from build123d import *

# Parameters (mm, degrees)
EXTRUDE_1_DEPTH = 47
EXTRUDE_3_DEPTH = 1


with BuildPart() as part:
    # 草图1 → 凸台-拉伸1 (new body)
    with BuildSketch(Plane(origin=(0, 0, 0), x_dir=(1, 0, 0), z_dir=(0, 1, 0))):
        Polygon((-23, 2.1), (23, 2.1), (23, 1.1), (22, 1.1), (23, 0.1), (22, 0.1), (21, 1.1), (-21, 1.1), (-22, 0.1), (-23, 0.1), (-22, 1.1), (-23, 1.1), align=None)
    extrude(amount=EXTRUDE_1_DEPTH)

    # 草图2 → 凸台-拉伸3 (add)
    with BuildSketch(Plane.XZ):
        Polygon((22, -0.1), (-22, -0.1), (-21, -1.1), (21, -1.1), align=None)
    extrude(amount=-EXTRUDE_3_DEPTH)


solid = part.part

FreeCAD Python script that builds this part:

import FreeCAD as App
import Part
import Sketcher
from FreeCAD import Vector


def add_polygon(sketch, points):
    """Adds a closed chain of lines whose ends are joined by coincident constraints."""
    first, n = sketch.GeometryCount, len(points)
    for a, b in zip(points, points[1:] + points[:1]):
        sketch.addGeometry(Part.LineSegment(App.Vector(*a, 0), App.Vector(*b, 0)), False)
    for i in range(n):
        sketch.addConstraint(Sketcher.Constraint("Coincident", first + i, 2, first + (i + 1) % n, 1))

doc = App.newDocument("Part")
body = doc.addObject("PartDesign::Body", "Body")

sketch1 = doc.addObject("Sketcher::SketchObject", "Sketch")
body.addObject(sketch1)
sketch1.AttachmentSupport = (doc.XZ_Plane, [""])
sketch1.MapMode = "FlatFace"
add_polygon(sketch1, [(23, -2.1), (-23, -2.1), (-23, -1.1), (-22, -1.1), (-23, -0.1), (-22, -0.1), (-21, -1.1), (21, -1.1), (22, -0.1), (23, -0.1), (22, -1.1), (23, -1.1)])
sketch1.addConstraint([
    Sketcher.Constraint("Horizontal", 0),
    Sketcher.Constraint("Vertical", 1),
    Sketcher.Constraint("Horizontal", 2),
    Sketcher.Constraint("Horizontal", 4),
    Sketcher.Constraint("Horizontal", 6),
    Sketcher.Constraint("Horizontal", 8),
    Sketcher.Constraint("Horizontal", 10),
    Sketcher.Constraint("Vertical", 11),
    Sketcher.Constraint("Symmetric", 4, 2, 7, 2, -2),
    Sketcher.Constraint("Symmetric", 2, 2, 9, 2, -2),
    Sketcher.Constraint("Parallel", 3, 5),
    Sketcher.Constraint("Perpendicular", 5, 7),
    Sketcher.Constraint("Parallel", 7, 9),
    Sketcher.Constraint("Horizontal", 2, 2, 5, 2),
    Sketcher.Constraint("Vertical", 1, 2, 3, 2),
    Sketcher.Constraint("Vertical", 2, 2, 4, 2),
    Sketcher.Constraint("Vertical", 8, 2, 10, 2),
    Sketcher.Constraint("Equal", 4, 8),
    Sketcher.Constraint("Equal", 10, 1),
    Sketcher.Constraint("DistanceX", 0, 2, 0, 1, 46.0),
    Sketcher.Constraint("DistanceX", 2, 1, 2, 2, 1.0),
    Sketcher.Constraint("DistanceY", 0, 2, -1, 1, 2.1),
])
pad1 = doc.addObject("PartDesign::Pad", "Pad")
body.addObject(pad1)
pad1.Profile = sketch1
pad1.Length = 47
pad1.Reversed = True

sketch2 = doc.addObject("Sketcher::SketchObject", "Sketch001")
body.addObject(sketch2)
sketch2.AttachmentSupport = (doc.XZ_Plane, [""])
sketch2.MapMode = "FlatFace"
add_polygon(sketch2, [(22, -0.1), (-22, -0.1), (-21, -1.1), (21, -1.1)])
sketch2.addConstraint([
    Sketcher.Constraint("Horizontal", 0),
    Sketcher.Constraint("Horizontal", 2),
    Sketcher.Constraint("Perpendicular", 1, 3),
    Sketcher.Constraint("Equal", 1, 3),
    Sketcher.Constraint("DistanceX", 0, 2, 0, 1, 44.0),
    Sketcher.Constraint("DistanceX", 2, 1, 2, 2, 42.0),
    Sketcher.Constraint("DistanceX", 0, 2, -1, 1, 22.0),
    Sketcher.Constraint("DistanceY", 0, 2, -1, 1, 0.1),
])
pad2 = doc.addObject("PartDesign::Pad", "Pad001")
body.addObject(pad2)
pad2.Profile = sketch2
pad2.Length = 1
pad2.Reversed = True

doc.recompute()
